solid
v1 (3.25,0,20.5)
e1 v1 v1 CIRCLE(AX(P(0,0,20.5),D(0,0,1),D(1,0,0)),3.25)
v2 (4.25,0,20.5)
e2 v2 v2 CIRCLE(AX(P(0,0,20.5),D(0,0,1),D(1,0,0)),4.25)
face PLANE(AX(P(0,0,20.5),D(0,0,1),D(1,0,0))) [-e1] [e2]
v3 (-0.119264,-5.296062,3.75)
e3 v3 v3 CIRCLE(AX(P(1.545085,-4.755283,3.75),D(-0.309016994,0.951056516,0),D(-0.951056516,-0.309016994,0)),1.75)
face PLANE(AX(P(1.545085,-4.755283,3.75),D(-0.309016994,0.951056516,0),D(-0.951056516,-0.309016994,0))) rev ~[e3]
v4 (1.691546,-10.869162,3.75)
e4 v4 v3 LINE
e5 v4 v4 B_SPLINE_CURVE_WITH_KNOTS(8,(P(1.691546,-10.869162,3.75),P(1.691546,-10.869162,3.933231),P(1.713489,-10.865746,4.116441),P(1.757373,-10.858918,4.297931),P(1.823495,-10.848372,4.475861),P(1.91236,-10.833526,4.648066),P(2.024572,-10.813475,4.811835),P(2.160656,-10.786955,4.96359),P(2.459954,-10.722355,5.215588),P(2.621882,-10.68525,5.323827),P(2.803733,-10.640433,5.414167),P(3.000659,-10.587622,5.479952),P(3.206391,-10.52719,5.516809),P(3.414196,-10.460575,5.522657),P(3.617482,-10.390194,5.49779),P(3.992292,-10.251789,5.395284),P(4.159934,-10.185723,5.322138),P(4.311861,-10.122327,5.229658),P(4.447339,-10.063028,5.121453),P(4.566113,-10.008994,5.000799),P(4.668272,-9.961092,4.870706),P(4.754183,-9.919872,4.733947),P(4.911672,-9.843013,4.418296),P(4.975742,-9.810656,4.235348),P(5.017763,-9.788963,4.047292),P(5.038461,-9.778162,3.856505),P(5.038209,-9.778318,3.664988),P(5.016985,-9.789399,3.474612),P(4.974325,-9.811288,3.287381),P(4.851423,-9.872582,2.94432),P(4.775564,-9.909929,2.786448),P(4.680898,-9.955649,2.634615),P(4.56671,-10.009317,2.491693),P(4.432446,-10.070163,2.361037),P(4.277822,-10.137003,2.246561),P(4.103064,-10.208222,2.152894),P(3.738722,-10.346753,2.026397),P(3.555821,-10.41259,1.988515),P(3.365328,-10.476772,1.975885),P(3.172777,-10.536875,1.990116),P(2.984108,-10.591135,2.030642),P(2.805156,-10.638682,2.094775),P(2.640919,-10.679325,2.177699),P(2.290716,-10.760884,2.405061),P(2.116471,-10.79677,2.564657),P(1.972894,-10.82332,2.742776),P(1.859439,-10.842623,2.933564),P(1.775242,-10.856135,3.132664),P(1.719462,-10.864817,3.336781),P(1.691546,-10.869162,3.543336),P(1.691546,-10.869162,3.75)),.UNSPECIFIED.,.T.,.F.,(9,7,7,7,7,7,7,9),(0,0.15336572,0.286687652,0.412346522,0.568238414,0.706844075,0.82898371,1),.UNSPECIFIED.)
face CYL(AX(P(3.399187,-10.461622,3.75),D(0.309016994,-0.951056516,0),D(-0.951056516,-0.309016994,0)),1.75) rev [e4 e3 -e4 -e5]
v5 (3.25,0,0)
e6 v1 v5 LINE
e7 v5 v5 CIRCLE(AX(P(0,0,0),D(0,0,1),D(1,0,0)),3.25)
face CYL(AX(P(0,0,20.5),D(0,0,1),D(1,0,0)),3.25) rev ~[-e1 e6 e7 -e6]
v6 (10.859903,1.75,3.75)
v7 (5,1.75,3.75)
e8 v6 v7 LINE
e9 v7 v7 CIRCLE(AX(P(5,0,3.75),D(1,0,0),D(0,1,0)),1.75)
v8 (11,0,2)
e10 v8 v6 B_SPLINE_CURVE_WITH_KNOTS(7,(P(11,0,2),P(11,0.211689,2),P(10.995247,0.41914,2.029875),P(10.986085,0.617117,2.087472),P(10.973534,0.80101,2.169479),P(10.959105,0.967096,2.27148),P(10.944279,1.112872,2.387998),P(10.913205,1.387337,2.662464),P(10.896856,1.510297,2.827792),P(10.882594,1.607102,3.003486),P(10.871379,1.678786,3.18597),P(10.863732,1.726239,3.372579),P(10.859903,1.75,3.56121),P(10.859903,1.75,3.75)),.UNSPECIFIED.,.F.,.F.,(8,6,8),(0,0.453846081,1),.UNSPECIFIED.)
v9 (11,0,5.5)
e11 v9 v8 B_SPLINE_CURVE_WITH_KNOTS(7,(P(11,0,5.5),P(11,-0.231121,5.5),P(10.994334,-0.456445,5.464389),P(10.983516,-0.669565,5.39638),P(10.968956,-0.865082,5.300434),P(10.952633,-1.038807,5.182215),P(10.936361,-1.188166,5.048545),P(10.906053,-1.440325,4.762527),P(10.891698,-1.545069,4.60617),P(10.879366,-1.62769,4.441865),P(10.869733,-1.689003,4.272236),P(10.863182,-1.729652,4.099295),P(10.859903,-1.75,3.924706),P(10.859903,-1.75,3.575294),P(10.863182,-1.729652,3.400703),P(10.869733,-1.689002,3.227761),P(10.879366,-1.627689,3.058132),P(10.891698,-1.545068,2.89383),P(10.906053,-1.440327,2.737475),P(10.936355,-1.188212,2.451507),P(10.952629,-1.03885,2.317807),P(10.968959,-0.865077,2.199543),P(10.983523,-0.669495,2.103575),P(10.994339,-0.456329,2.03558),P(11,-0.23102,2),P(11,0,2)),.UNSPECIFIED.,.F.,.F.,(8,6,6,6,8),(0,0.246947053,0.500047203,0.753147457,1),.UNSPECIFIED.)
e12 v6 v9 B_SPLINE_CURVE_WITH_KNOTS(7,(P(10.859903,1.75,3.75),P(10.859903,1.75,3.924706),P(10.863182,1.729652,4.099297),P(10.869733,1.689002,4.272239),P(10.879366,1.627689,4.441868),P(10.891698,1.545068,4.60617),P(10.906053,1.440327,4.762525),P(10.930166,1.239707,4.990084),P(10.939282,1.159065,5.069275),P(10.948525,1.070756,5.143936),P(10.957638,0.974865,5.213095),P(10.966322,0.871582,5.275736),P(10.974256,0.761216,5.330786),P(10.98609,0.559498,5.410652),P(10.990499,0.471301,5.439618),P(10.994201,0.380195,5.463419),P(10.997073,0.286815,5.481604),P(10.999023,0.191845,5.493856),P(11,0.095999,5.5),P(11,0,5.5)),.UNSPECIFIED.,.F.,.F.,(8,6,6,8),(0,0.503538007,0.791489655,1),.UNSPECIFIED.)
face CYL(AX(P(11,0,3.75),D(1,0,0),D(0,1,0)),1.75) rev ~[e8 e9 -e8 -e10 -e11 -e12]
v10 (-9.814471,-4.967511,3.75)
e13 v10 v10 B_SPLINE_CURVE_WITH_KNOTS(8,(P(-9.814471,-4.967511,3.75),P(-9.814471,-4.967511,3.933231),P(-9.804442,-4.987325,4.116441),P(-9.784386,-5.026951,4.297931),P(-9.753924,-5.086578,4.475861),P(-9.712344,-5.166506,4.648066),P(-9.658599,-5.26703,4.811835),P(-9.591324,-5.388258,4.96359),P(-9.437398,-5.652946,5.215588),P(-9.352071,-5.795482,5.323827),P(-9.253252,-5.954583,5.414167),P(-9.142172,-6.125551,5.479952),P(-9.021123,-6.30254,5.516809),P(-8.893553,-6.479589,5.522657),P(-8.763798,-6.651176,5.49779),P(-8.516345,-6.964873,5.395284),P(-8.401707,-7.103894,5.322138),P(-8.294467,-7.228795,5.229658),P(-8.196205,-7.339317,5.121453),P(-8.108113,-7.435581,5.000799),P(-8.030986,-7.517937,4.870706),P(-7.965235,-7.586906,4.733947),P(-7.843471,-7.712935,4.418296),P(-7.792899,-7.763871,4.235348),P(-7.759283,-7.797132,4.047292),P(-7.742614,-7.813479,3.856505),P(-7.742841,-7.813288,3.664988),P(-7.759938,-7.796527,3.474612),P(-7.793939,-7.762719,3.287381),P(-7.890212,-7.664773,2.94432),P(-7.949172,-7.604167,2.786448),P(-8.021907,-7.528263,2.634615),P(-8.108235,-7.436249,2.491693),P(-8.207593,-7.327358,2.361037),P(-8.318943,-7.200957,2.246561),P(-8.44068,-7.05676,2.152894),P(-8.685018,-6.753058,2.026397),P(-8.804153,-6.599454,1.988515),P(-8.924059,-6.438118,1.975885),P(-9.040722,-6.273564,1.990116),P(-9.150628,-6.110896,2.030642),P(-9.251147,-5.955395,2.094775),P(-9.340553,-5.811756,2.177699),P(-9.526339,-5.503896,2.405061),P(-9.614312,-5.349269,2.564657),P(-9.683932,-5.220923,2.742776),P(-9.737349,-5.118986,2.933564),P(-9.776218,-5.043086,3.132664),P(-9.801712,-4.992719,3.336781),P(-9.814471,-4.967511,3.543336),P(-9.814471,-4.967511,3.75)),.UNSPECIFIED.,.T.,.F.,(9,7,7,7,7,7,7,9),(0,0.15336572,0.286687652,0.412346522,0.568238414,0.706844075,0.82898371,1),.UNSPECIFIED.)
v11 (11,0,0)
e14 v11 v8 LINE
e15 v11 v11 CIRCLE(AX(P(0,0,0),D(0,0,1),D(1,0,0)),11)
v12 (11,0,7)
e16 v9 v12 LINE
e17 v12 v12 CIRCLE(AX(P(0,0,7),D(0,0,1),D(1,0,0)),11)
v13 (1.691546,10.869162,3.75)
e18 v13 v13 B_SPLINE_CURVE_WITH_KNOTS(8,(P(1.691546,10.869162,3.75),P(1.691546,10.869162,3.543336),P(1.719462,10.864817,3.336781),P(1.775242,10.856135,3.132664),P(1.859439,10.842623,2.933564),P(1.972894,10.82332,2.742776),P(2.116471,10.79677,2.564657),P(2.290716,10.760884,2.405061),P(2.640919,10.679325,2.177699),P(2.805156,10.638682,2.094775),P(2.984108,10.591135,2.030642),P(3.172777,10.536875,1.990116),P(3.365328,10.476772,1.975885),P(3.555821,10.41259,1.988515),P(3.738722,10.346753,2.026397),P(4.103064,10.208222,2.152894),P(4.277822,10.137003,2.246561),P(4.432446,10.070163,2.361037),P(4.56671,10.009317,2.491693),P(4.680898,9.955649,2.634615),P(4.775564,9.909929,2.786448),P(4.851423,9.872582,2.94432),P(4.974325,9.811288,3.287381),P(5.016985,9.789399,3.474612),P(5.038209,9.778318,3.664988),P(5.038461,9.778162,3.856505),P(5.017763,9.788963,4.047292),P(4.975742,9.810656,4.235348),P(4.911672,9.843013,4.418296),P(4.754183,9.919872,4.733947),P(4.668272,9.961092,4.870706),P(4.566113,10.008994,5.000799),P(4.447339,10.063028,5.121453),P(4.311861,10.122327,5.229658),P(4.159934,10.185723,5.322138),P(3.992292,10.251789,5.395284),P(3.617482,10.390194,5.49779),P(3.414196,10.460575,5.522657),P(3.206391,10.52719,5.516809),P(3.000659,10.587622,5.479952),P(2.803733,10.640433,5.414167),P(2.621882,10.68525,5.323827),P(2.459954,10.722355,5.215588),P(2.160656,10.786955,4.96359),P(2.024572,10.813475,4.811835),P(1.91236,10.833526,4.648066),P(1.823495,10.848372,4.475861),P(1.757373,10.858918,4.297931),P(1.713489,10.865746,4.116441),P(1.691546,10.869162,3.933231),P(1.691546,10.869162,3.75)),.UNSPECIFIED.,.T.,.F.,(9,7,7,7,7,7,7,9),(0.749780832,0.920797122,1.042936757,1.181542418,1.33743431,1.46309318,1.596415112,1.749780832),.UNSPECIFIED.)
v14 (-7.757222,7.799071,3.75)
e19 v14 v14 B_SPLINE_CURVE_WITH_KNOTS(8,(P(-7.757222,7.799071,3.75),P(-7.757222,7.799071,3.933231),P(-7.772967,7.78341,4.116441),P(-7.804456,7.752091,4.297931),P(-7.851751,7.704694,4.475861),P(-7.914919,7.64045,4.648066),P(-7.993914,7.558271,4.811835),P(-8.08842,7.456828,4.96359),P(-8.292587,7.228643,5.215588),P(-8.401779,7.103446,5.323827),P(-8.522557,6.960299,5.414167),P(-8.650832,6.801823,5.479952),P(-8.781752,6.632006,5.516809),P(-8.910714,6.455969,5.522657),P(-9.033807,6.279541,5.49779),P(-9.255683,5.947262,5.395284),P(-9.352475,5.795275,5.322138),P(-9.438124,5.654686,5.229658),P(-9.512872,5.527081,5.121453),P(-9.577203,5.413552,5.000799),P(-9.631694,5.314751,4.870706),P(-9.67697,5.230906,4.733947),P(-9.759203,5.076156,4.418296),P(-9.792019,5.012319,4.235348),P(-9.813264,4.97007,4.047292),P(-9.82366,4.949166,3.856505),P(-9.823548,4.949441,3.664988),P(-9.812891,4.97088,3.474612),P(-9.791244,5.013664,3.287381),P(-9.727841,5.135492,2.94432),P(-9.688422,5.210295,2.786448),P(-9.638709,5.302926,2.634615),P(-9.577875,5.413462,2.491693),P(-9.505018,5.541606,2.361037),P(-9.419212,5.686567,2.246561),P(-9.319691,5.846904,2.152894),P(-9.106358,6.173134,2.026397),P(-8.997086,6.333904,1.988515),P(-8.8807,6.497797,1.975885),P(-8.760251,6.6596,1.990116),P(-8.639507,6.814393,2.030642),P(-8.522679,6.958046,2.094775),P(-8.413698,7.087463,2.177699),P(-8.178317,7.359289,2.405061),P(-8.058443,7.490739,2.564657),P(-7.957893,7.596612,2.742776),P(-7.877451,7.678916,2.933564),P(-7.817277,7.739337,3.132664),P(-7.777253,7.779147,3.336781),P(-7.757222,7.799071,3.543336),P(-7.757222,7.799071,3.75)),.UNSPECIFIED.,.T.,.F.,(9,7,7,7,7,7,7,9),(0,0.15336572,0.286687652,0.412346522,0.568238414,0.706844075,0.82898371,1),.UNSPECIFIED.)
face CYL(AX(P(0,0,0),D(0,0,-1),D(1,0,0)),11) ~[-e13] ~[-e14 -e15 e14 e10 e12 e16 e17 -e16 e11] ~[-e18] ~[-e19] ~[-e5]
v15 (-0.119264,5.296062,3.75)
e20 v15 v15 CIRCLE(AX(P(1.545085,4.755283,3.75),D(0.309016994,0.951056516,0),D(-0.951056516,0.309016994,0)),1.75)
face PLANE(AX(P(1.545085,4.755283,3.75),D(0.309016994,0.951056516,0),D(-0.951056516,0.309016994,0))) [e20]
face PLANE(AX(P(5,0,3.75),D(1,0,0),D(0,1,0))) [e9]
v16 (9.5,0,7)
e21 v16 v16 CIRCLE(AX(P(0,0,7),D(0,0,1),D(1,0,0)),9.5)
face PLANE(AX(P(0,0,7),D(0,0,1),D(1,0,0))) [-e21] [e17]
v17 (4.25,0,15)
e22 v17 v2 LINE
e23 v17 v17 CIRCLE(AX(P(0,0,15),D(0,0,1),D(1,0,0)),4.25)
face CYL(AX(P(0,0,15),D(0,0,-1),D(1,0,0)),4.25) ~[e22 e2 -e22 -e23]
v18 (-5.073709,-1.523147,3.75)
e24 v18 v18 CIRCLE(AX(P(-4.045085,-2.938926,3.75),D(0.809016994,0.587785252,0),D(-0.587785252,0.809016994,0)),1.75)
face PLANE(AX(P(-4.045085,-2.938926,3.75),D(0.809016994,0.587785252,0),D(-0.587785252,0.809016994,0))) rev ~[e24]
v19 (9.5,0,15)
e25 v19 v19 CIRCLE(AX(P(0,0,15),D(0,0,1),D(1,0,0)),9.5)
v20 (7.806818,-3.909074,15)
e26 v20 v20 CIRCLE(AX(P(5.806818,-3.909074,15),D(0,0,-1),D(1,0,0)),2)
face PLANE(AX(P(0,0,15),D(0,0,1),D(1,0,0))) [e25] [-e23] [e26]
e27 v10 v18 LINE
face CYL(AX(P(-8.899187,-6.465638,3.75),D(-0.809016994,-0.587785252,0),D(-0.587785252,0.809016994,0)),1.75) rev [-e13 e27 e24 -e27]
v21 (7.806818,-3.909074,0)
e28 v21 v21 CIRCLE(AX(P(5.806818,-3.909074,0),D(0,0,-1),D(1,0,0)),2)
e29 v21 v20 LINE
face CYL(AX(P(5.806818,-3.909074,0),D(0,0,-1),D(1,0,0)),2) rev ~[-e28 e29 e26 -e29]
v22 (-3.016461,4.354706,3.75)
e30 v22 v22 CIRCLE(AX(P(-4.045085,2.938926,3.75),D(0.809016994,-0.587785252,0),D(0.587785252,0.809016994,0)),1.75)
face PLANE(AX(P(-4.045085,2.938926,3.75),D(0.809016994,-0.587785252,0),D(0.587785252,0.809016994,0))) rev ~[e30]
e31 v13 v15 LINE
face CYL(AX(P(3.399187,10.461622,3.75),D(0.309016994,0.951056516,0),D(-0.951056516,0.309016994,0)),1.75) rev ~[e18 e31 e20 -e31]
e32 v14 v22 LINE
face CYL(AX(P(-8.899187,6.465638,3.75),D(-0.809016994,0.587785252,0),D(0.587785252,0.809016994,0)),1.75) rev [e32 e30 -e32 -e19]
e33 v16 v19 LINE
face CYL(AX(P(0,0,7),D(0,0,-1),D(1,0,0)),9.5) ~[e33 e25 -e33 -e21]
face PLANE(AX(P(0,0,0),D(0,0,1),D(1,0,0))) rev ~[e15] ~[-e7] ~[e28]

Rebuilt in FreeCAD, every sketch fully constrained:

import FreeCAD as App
import Part
import Sketcher

doc = App.newDocument("Part")
params = doc.addObject("Spreadsheet::Sheet", "Params")
for row, (alias, value) in enumerate([
    ("sketch1_diameter", "22 mm"),
    ("pad1_length", "7 mm"),
    ("sketch2_diameter", "19 mm"),
    ("pad2_length", "8 mm"),
    ("sketch3_diameter", "8.5 mm"),
    ("pad3_length", "5.5 mm"),
    ("sketch4_diameter", "6.5 mm"),
    ("sketch5_diameter", "3.5 mm"),
    ("pocket2_length", "6 mm"),
    ("sketch6_diameter", "3.5 mm"),
    ("pocket3_length", "6 mm"),
    ("sketch7_diameter", "3.5 mm"),
    ("pocket4_length", "6 mm"),
    ("sketch8_diameter", "3.5 mm"),
    ("pocket5_length", "6 mm"),
    ("sketch9_diameter", "3.5 mm"),
    ("pocket6_length", "6 mm"),
    ("sketch10_diameter", "4 mm"),
    ("pocket7_length", "25 mm"),
], start=1):
    params.set(f"A{row}", alias)
    params.set(f"B{row}", "=" + value)
    params.setAlias(f"B{row}", alias)

body = doc.addObject("PartDesign::Body", "Body")

sketch1 = doc.addObject("Sketcher::SketchObject", "Sketch")
body.addObject(sketch1)
sketch1.AttachmentSupport = (doc.XY_Plane, [""])
sketch1.MapMode = "FlatFace"
sketch1.addGeometry(Part.Circle(App.Vector(0, 0, 0), App.Vector(0, 0, 1), 11), False)
sketch1.addConstraint(Sketcher.Constraint("Coincident", 0, 3, -1, 1))
sketch1.addConstraint(Sketcher.Constraint("Diameter", 0, 22.0))
sketch1.setExpression("Constraints[1]", "Params.sketch1_diameter")
pad1 = doc.addObject("PartDesign::Pad", "Pad")
body.addObject(pad1)
pad1.Profile = sketch1
pad1.setExpression("Length", "Params.pad1_length")

sketch2 = doc.addObject("Sketcher::SketchObject", "Sketch001")
body.addObject(sketch2)
sketch2.AttachmentSupport = (doc.XY_Plane, [""])
sketch2.MapMode = "FlatFace"
sketch2.AttachmentOffset = App.Placement(App.Vector(0, 0, 7), App.Rotation())
sketch2.addGeometry(Part.Circle(App.Vector(0, 0, 0), App.Vector(0, 0, 1), 10), False)
sketch2.addConstraint(Sketcher.Constraint("Coincident", 0, 3, -1, 1))
sketch2.addConstraint(Sketcher.Constraint("Diameter", 0, 19.0))
sketch2.setExpression("Constraints[1]", "Params.sketch2_diameter")
pad2 = doc.addObject("PartDesign::Pad", "Pad001")
body.addObject(pad2)
pad2.Profile = sketch2
pad2.setExpression("Length", "Params.pad2_length")

sketch3 = doc.addObject("Sketcher::SketchObject", "Sketch002")
body.addObject(sketch3)
sketch3.AttachmentSupport = (doc.XY_Plane, [""])
sketch3.MapMode = "FlatFace"
sketch3.AttachmentOffset = App.Placement(App.Vector(0, 0, 15), App.Rotation())
sketch3.addGeometry(Part.Circle(App.Vector(0, 0, 0), App.Vector(0, 0, 1), 4.2), False)
sketch3.addConstraint(Sketcher.Constraint("Coincident", 0, 3, -1, 1))
sketch3.addConstraint(Sketcher.Constraint("Diameter", 0, 8.5))
sketch3.setExpression("Constraints[1]", "Params.sketch3_diameter")
pad3 = doc.addObject("PartDesign::Pad", "Pad002")
body.addObject(pad3)
pad3.Profile = sketch3
pad3.setExpression("Length", "Params.pad3_length")

sketch4 = doc.addObject("Sketcher::SketchObject", "Sketch003")
body.addObject(sketch4)
sketch4.AttachmentSupport = (doc.XY_Plane, [""])
sketch4.MapMode = "FlatFace"
sketch4.AttachmentOffset = App.Placement(App.Vector(0, 0, 20.5), App.Rotation())
sketch4.addGeometry(Part.Circle(App.Vector(0, 0, 0), App.Vector(0, 0, 1), 3.2), False)
sketch4.addConstraint(Sketcher.Constraint("Coincident", 0, 3, -1, 1))
sketch4.addConstraint(Sketcher.Constraint("Diameter", 0, 6.5))
sketch4.setExpression("Constraints[1]", "Params.sketch4_diameter")
pocket1 = doc.addObject("PartDesign::Pocket", "Pocket")
body.addObject(pocket1)
pocket1.Profile = sketch4
pocket1.Type = "ThroughAll"

sketch5 = doc.addObject("Sketcher::SketchObject", "Sketch004")
body.addObject(sketch5)
sketch5.AttachmentSupport = (doc.YZ_Plane, [""])
sketch5.MapMode = "FlatFace"
sketch5.AttachmentOffset = App.Placement(App.Vector(0, 0, 11), App.Rotation())
sketch5.addGeometry(Part.Circle(App.Vector(0, 3.8, 0), App.Vector(0, 0, 1), 1.8), False)
sketch5.addConstraint(Sketcher.Constraint("PointOnObject", 0, 3, -2))
sketch5.addConstraint(Sketcher.Constraint("Diameter", 0, 3.5))
sketch5.addConstraint(Sketcher.Constraint("DistanceY", -1, 1, 0, 3, 3.75))
sketch5.setExpression("Constraints[1]", "Params.sketch5_diameter")
pocket2 = doc.addObject("PartDesign::Pocket", "Pocket001")
body.addObject(pocket2)
pocket2.Profile = sketch5
pocket2.setExpression("Length", "Params.pocket2_length")

sketch6 = doc.addObject("Sketcher::SketchObject", "Sketch005")
body.addObject(sketch6)
sketch6.Placement = App.Placement(App.Vector(3.399187, -10.461622, 0), App.Rotation(App.Vector(-0.951056516, -0.309016994, 0), App.Vector(0, 0, 0.999999999), App.Vector(-0.309016994, 0.951056516, 0), "ZXY"))
sketch6.addGeometry(Part.Circle(App.Vector(0, 3.7, 0), App.Vector(0, 0, 1), 1.8), False)
sketch6.addConstraint(Sketcher.Constraint("PointOnObject", 0, 3, -2))
sketch6.addConstraint(Sketcher.Constraint("Diameter", 0, 3.5))
sketch6.addConstraint(Sketcher.Constraint("DistanceY", -1, 1, 0, 3, 3.75))
sketch6.setExpression("Constraints[1]", "Params.sketch6_diameter")
pocket3 = doc.addObject("PartDesign::Pocket", "Pocket002")
body.addObject(pocket3)
pocket3.Profile = sketch6
pocket3.setExpression("Length", "Params.pocket3_length")
pocket3.Reversed = True

sketch7 = doc.addObject("Sketcher::SketchObject", "Sketch006")
body.addObject(sketch7)
sketch7.Placement = App.Placement(App.Vector(-8.899187, -6.465638, 0), App.Rotation(App.Vector(-0.587785252, 0.809016994, 0), App.Vector(0, 0, 0.999999999), App.Vector(0.809016994, 0.587785252, 0), "ZXY"))
sketch7.addGeometry(Part.Circle(App.Vector(0, 3.7, 0), App.Vector(0, 0, 1), 1.8), False)
sketch7.addConstraint(Sketcher.Constraint("PointOnObject", 0, 3, -2))
sketch7.addConstraint(Sketcher.Constraint("Diameter", 0, 3.5))
sketch7.addConstraint(Sketcher.Constraint("DistanceY", -1, 1, 0, 3, 3.75))
sketch7.setExpression("Constraints[1]", "Params.sketch7_diameter")
pocket4 = doc.addObject("PartDesign::Pocket", "Pocket003")
body.addObject(pocket4)
pocket4.Profile = sketch7
pocket4.setExpression("Length", "Params.pocket4_length")
pocket4.Reversed = True

sketch8 = doc.addObject("Sketcher::SketchObject", "Sketch007")
body.addObject(sketch8)
sketch8.Placement = App.Placement(App.Vector(-8.899187, 6.465638, 0), App.Rotation(App.Vector(0.587785252, 0.809016994, 0), App.Vector(0, 0, 0.999999999), App.Vector(0.809016994, -0.587785252, 0), "ZXY"))
sketch8.addGeometry(Part.Circle(App.Vector(0, 3.7, 0), App.Vector(0, 0, 1), 1.8), False)
sketch8.addConstraint(Sketcher.Constraint("PointOnObject", 0, 3, -2))
sketch8.addConstraint(Sketcher.Constraint("Diameter", 0, 3.5))
sketch8.addConstraint(Sketcher.Constraint("DistanceY", -1, 1, 0, 3, 3.75))
sketch8.setExpression("Constraints[1]", "Params.sketch8_diameter")
pocket5 = doc.addObject("PartDesign::Pocket", "Pocket004")
body.addObject(pocket5)
pocket5.Profile = sketch8
pocket5.setExpression("Length", "Params.pocket5_length")
pocket5.Reversed = True

sketch9 = doc.addObject("Sketcher::SketchObject", "Sketch008")
body.addObject(sketch9)
sketch9.Placement = App.Placement(App.Vector(3.399187, 10.461622, 0), App.Rotation(App.Vector(-0.951056516, 0.309016994, 0), App.Vector(0, 0, 0.999999999), App.Vector(0.309016994, 0.951056516, 0), "ZXY"))
sketch9.addGeometry(Part.Circle(App.Vector(0, 3.7, 0), App.Vector(0, 0, 1), 1.8), False)
sketch9.addConstraint(Sketcher.Constraint("PointOnObject", 0, 3, -2))
sketch9.addConstraint(Sketcher.Constraint("Diameter", 0, 3.5))
sketch9.addConstraint(Sketcher.Constraint("DistanceY", -1, 1, 0, 3, 3.75))
sketch9.setExpression("Constraints[1]", "Params.sketch9_diameter")
pocket6 = doc.addObject("PartDesign::Pocket", "Pocket005")
body.addObject(pocket6)
pocket6.Profile = sketch9
pocket6.setExpression("Length", "Params.pocket6_length")

sketch10 = doc.addObject("Sketcher::SketchObject", "Sketch009")
body.addObject(sketch10)
sketch10.AttachmentSupport = (doc.XY_Plane, [""])
sketch10.MapMode = "FlatFace"
sketch10.addGeometry(Part.Circle(App.Vector(5.8, -3.9, 0), App.Vector(0, 0, 1), 2), False)
sketch10.addConstraint(Sketcher.Constraint("Diameter", 0, 4.0))
sketch10.addConstraint(Sketcher.Constraint("DistanceX", -1, 1, 0, 3, 5.806818))
sketch10.addConstraint(Sketcher.Constraint("DistanceY", 0, 3, -1, 1, 3.909074))
sketch10.setExpression("Constraints[0]", "Params.sketch10_diameter")
pocket7 = doc.addObject("PartDesign::Pocket", "Pocket006")
body.addObject(pocket7)
pocket7.Profile = sketch10
pocket7.setExpression("Length", "Params.pocket7_length")
pocket7.Reversed = True

doc.recompute()
